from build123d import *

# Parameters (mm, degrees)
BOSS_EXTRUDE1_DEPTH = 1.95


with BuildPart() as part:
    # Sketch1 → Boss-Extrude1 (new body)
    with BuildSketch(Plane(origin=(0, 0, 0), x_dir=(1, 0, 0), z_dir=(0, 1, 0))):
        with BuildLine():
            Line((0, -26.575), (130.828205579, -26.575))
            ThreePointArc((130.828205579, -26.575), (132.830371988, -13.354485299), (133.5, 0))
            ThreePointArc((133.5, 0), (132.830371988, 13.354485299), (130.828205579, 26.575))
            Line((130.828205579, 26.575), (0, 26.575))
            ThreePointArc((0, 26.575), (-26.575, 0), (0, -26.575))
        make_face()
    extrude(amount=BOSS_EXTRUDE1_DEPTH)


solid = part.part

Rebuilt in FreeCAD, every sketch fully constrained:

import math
import FreeCAD as App
import Part
import Sketcher

V = App.Vector

doc = App.newDocument("Part")
body = doc.addObject("PartDesign::Body", "Body")

sketch1 = doc.addObject("Sketcher::SketchObject", "Sketch")
body.addObject(sketch1)
sketch1.AttachmentSupport = (doc.XZ_Plane, [""])
sketch1.MapMode = "FlatFace"
sketch1.addGeometry(Part.LineSegment(V(0, 27, 0), V(131, 27, 0)), False)
sketch1.addGeometry(Part.ArcOfCircle(Part.Circle(V(0, 0, 0), V(0, 0, 1), 133), math.radians(0), math.radians(11.48)), False)
sketch1.addGeometry(Part.ArcOfCircle(Part.Circle(V(0, 0, 0), V(0, 0, 1), 133), math.radians(-11.48), math.radians(0)), False)
sketch1.addGeometry(Part.LineSegment(V(131, -27, 0), V(0, -27, 0)), False)
sketch1.addGeometry(Part.ArcOfCircle(Part.Circle(V(0, 0, 0), V(0, 0, 1), 27), math.radians(90), math.radians(270)), False)
sketch1.addConstraint(Sketcher.Constraint("Coincident", 0, 2, 1, 2))
sketch1.addConstraint(Sketcher.Constraint("Tangent", 1, 1, 2, 2))
sketch1.addConstraint(Sketcher.Constraint("Coincident", 2, 1, 3, 1))
sketch1.addConstraint(Sketcher.Constraint("Tangent", 3, 2, 4, 2))
sketch1.addConstraint(Sketcher.Constraint("Tangent", 4, 1, 0, 1))
sketch1.addConstraint(Sketcher.Constraint("Horizontal", 0))
sketch1.addConstraint(Sketcher.Constraint("Horizontal", 3))
sketch1.addConstraint(Sketcher.Constraint("Coincident", 1, 3, -1, 1))
sketch1.addConstraint(Sketcher.Constraint("Coincident", 4, 3, -1, 1))
sketch1.addConstraint(Sketcher.Constraint("Equal", 1, 2))
sketch1.addConstraint(Sketcher.Constraint("PointOnObject", 1, 1, -1))
sketch1.addConstraint(Sketcher.Constraint("Radius", 1, 133.5))
sketch1.addConstraint(Sketcher.Constraint("Radius", 4, 26.575))
pad1 = doc.addObject("PartDesign::Pad", "Pad")
body.addObject(pad1)
pad1.Profile = sketch1
pad1.Length = 1.95
pad1.Reversed = True

doc.recompute()
